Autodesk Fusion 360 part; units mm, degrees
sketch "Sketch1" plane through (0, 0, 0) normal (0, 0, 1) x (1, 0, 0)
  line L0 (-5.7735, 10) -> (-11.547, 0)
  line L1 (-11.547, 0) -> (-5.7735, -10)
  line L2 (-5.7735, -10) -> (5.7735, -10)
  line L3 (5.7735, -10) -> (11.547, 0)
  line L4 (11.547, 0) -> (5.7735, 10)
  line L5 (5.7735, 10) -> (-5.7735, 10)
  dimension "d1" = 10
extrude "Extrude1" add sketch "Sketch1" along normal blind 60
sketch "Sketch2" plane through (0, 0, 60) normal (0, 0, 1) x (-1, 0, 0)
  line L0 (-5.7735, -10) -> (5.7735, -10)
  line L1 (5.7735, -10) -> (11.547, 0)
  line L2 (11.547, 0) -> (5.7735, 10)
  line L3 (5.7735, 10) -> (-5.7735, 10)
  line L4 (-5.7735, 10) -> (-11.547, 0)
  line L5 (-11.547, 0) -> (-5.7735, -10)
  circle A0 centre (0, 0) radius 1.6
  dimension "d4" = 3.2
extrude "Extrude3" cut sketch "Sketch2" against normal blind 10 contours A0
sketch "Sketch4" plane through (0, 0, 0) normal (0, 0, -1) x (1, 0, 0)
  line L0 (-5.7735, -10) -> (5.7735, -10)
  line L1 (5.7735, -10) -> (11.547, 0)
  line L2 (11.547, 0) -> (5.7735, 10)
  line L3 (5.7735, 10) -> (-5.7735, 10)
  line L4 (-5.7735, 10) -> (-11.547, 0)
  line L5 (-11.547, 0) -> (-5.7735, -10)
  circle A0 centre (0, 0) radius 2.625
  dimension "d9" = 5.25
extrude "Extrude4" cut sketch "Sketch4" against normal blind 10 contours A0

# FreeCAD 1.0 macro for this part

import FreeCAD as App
import Part
import Sketcher
from FreeCAD import Vector
Q = App.Units.Quantity

doc = App.newDocument("Part")
body = doc.addObject("PartDesign::Body", "Body")

sketch1 = body.newObject("Sketcher::SketchObject", "Sketch")
sketch1.AttachmentSupport = (doc.getObject("XY_Plane"), [""])
sketch1.MapMode = "FlatFace"
sketch1.addGeometry(Part.LineSegment(Vector(5.7735, 10, 0), Vector(-5.7735, 10, 0)), False)
sketch1.addGeometry(Part.LineSegment(Vector(-5.7735, 10, 0), Vector(-11.547, 0, 0)), False)
sketch1.addGeometry(Part.LineSegment(Vector(-11.547, 0, 0), Vector(-5.7735, -10, 0)), False)
sketch1.addGeometry(Part.LineSegment(Vector(-5.7735, -10, 0), Vector(5.7735, -10, 0)), False)
sketch1.addGeometry(Part.LineSegment(Vector(5.7735, -10, 0), Vector(11.547, 0, 0)), False)
sketch1.addGeometry(Part.LineSegment(Vector(11.547, 0, 0), Vector(5.7735, 10, 0)), False)
sketch1.addConstraint(Sketcher.Constraint("Coincident", 0, 2, 1, 1))
sketch1.addConstraint(Sketcher.Constraint("Coincident", 1, 2, 2, 1))
sketch1.addConstraint(Sketcher.Constraint("Coincident", 2, 2, 3, 1))
sketch1.addConstraint(Sketcher.Constraint("Coincident", 3, 2, 4, 1))
sketch1.addConstraint(Sketcher.Constraint("Coincident", 4, 2, 5, 1))
sketch1.addConstraint(Sketcher.Constraint("Coincident", 5, 2, 0, 1))
sketch1.addConstraint(Sketcher.Constraint("Horizontal", 0))
sketch1.addConstraint(Sketcher.Constraint("Horizontal", 3))
sketch1.addConstraint(Sketcher.Constraint("Symmetric", 0, 2, 3, 2, -1, 1))
sketch1.addConstraint(Sketcher.Constraint("Symmetric", 1, 2, 4, 2, -1, 1))
sketch1.addConstraint(Sketcher.Constraint("PointOnObject", 1, 2, -1))
sketch1.addConstraint(Sketcher.Constraint("Parallel", 2, 5))
sketch1.addConstraint(Sketcher.Constraint("Vertical", 0, 2, 2, 2))
sketch1.addConstraint(Sketcher.Constraint("DistanceY", -1, 1, 0, 2, Q("10 mm")))
sketch1.addConstraint(Sketcher.Constraint("Angle", 1, Q("-120 deg")))
sketch1.addConstraint(Sketcher.Constraint("DistanceX", 0, 2, 0, 1, Q("11.547 mm")))
pad1 = body.newObject("PartDesign::Pad", "Pad")
pad1.Profile = sketch1
pad1.Length = 60

sketch2 = body.newObject("Sketcher::SketchObject", "Sketch001")
sketch2.AttachmentSupport = (doc.getObject("XY_Plane"), [""])
sketch2.MapMode = "FlatFace"
sketch2.AttachmentOffset = App.Placement(Vector(0, 0, 60), App.Rotation())
sketch2.addGeometry(Part.Circle(Vector(0, 0, 0), Vector(0, 0, 1), 1.6), False)
sketch2.addConstraint(Sketcher.Constraint("Coincident", 0, 3, -1, 1))
sketch2.addConstraint(Sketcher.Constraint("Diameter", 0, Q("3.2 mm")))
pocket1 = body.newObject("PartDesign::Pocket", "Pocket")
pocket1.Profile = sketch2
pocket1.Length = 10

sketch3 = body.newObject("Sketcher::SketchObject", "Sketch002")
sketch3.AttachmentSupport = (doc.getObject("XY_Plane"), [""])
sketch3.MapMode = "FlatFace"
sketch3.addGeometry(Part.Circle(Vector(0, 0, 0), Vector(0, 0, 1), 2.625), False)
sketch3.addConstraint(Sketcher.Constraint("Coincident", 0, 3, -1, 1))
sketch3.addConstraint(Sketcher.Constraint("Diameter", 0, Q("5.25 mm")))
pocket2 = body.newObject("PartDesign::Pocket", "Pocket001")
pocket2.Profile = sketch3
pocket2.Length = 10
pocket2.Reversed = True

doc.recompute()
